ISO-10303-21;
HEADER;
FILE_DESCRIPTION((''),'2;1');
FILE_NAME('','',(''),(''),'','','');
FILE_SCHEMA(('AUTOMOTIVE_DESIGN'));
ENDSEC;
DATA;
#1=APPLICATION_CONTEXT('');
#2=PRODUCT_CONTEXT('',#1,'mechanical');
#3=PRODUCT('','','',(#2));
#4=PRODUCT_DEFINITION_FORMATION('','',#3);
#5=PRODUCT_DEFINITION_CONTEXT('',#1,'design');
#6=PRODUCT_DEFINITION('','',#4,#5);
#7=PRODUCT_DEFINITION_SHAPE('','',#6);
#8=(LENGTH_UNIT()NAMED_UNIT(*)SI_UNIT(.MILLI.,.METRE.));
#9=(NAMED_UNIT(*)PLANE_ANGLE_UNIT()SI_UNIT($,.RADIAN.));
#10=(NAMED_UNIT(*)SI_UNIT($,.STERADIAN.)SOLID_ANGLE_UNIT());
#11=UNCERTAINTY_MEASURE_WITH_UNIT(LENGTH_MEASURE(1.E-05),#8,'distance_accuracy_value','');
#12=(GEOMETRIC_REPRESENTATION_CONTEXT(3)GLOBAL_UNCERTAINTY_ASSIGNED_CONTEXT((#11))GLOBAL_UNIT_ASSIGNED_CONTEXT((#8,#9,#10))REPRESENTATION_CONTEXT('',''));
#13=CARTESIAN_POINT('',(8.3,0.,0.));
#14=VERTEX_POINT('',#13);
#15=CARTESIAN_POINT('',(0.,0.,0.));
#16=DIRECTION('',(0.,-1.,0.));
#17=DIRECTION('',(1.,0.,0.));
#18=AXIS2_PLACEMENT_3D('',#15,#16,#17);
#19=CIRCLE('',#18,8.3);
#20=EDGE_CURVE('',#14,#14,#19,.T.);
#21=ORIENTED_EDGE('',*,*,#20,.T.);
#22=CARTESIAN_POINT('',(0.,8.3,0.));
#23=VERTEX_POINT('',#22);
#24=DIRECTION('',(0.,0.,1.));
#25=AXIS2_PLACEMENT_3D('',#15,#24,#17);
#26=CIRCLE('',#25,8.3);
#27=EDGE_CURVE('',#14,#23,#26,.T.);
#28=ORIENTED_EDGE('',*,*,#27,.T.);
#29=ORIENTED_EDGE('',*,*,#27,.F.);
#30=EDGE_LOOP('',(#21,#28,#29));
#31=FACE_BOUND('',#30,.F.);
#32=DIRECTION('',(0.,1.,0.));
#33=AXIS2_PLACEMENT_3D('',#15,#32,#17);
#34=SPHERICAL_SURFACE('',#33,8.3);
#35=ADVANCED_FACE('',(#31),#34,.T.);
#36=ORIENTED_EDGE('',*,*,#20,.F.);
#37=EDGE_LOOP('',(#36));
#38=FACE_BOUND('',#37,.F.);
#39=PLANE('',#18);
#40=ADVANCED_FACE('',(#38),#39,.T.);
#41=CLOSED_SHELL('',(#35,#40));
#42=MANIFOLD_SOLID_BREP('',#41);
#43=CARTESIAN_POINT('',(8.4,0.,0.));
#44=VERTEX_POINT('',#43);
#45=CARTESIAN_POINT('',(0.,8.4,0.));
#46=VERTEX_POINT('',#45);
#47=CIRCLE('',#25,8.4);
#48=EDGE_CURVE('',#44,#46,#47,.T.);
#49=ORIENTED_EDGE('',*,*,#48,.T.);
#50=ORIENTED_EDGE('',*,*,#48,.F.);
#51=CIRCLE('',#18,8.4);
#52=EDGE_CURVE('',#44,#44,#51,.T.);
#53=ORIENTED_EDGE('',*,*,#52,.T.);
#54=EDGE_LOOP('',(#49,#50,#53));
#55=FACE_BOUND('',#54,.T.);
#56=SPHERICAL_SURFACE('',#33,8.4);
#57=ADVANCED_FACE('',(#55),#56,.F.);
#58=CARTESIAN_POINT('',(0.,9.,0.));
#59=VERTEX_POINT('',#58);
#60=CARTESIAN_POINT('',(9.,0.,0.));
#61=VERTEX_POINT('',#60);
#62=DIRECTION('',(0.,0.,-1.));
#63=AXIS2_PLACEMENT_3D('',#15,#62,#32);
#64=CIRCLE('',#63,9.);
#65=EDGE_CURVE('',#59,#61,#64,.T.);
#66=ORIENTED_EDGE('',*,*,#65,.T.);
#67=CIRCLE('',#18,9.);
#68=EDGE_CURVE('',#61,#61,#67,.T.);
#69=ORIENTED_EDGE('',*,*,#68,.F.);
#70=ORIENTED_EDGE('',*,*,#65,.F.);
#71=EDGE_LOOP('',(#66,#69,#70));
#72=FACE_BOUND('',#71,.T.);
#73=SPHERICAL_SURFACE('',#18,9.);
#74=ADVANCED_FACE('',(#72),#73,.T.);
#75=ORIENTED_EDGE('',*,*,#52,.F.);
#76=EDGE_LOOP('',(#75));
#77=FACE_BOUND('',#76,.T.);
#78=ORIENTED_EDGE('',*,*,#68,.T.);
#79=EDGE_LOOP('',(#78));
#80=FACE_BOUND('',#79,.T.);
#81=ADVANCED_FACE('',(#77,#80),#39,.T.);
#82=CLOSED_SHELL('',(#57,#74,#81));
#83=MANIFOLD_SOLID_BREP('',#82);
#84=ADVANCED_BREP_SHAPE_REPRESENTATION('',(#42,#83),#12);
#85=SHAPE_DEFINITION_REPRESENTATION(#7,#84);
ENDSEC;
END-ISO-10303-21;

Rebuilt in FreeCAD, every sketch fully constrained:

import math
import FreeCAD as App
import Part
import Sketcher
from FreeCAD import Vector
Q = App.Units.Quantity

doc = App.newDocument("Part")
params = doc.addObject("Spreadsheet::Sheet", "Params")
for row, (alias, value) in enumerate([
    ("sketch1_radius", "9 mm"),
    ("sketch1_radius2", "8.4 mm"),
    ("revolution_angle", "360 deg"),
    ("sketch2_radius", "8.3 mm"),
    ("revolution2_angle", "360 deg"),
], start=1):
    params.set(f"A{row}", alias)
    params.set(f"B{row}", "=" + value)
    params.setAlias(f"B{row}", alias)

body = doc.addObject("PartDesign::Body", "Body")

sketch1 = doc.addObject("Sketcher::SketchObject", "Sketch")
body.addObject(sketch1)
sketch1.AttachmentSupport = (doc.XY_Plane, [""])
sketch1.MapMode = "FlatFace"
sketch1.addGeometry(Part.LineSegment(Vector(0, 9, 0), Vector(0, 8.4, 0)), False)
sketch1.addGeometry(Part.ArcOfCircle(Part.Circle(Vector(0, 0, 0), Vector(0, 0, 1), 8.4), math.radians(0), math.radians(90)), False)
sketch1.addGeometry(Part.LineSegment(Vector(8.4, 0, 0), Vector(9, 0, 0)), False)
sketch1.addGeometry(Part.ArcOfCircle(Part.Circle(Vector(0, 0, 0), Vector(0, 0, 1), 9), math.radians(0), math.radians(90)), False)
sketch1.addConstraint(Sketcher.Constraint("Coincident", 0, 2, 1, 2))
sketch1.addConstraint(Sketcher.Constraint("Coincident", 1, 1, 2, 1))
sketch1.addConstraint(Sketcher.Constraint("Coincident", 2, 2, 3, 1))
sketch1.addConstraint(Sketcher.Constraint("Coincident", 3, 2, 0, 1))
sketch1.addConstraint(Sketcher.Constraint("Vertical", 0))
sketch1.addConstraint(Sketcher.Constraint("Horizontal", 2))
sketch1.addConstraint(Sketcher.Constraint("Coincident", 1, 3, -1, 1))
sketch1.addConstraint(Sketcher.Constraint("Coincident", 3, 3, -1, 1))
sketch1.addConstraint(Sketcher.Constraint("PointOnObject", 0, 2, -2))
sketch1.addConstraint(Sketcher.Constraint("PointOnObject", 1, 1, -1))
sketch1.addConstraint(Sketcher.Constraint("Radius", 3, Q("9 mm")))
sketch1.addConstraint(Sketcher.Constraint("Radius", 1, Q("8.4 mm")))
sketch1.setExpression("Constraints[10]", "Params.sketch1_radius")
sketch1.setExpression("Constraints[11]", "Params.sketch1_radius2")
revolution = doc.addObject("PartDesign::Revolution", "Revolution")
body.addObject(revolution)
revolution.Profile = sketch1
revolution.ReferenceAxis = (sketch1, ["V_Axis"])
revolution.setExpression("Angle", "Params.revolution_angle")
body2 = doc.addObject("PartDesign::Body", "Body001")

sketch2 = doc.addObject("Sketcher::SketchObject", "Sketch001")
body2.addObject(sketch2)
sketch2.AttachmentSupport = (doc.getObject("XY_Plane001"), [""])
sketch2.MapMode = "FlatFace"
sketch2.addGeometry(Part.LineSegment(Vector(0, 8.3, 0), Vector(0, 0, 0)), False)
sketch2.addGeometry(Part.LineSegment(Vector(0, 0, 0), Vector(8.3, 0, 0)), False)
sketch2.addGeometry(Part.ArcOfCircle(Part.Circle(Vector(0, 0, 0), Vector(0, 0, 1), 8.3), math.radians(0), math.radians(90)), False)
sketch2.addConstraint(Sketcher.Constraint("Coincident", 0, 2, 1, 1))
sketch2.addConstraint(Sketcher.Constraint("Coincident", 1, 2, 2, 1))
sketch2.addConstraint(Sketcher.Constraint("Coincident", 2, 2, 0, 1))
sketch2.addConstraint(Sketcher.Constraint("Vertical", 0))
sketch2.addConstraint(Sketcher.Constraint("Horizontal", 1))
sketch2.addConstraint(Sketcher.Constraint("Coincident", 2, 3, -1, 1))
sketch2.addConstraint(Sketcher.Constraint("Coincident", 0, 2, -1, 1))
sketch2.addConstraint(Sketcher.Constraint("Radius", 2, Q("8.3 mm")))
sketch2.setExpression("Constraints[7]", "Params.sketch2_radius")
revolution2 = doc.addObject("PartDesign::Revolution", "Revolution001")
body2.addObject(revolution2)
revolution2.Profile = sketch2
revolution2.ReferenceAxis = (sketch2, ["V_Axis"])
revolution2.setExpression("Angle", "Params.revolution2_angle")

doc.recompute()
